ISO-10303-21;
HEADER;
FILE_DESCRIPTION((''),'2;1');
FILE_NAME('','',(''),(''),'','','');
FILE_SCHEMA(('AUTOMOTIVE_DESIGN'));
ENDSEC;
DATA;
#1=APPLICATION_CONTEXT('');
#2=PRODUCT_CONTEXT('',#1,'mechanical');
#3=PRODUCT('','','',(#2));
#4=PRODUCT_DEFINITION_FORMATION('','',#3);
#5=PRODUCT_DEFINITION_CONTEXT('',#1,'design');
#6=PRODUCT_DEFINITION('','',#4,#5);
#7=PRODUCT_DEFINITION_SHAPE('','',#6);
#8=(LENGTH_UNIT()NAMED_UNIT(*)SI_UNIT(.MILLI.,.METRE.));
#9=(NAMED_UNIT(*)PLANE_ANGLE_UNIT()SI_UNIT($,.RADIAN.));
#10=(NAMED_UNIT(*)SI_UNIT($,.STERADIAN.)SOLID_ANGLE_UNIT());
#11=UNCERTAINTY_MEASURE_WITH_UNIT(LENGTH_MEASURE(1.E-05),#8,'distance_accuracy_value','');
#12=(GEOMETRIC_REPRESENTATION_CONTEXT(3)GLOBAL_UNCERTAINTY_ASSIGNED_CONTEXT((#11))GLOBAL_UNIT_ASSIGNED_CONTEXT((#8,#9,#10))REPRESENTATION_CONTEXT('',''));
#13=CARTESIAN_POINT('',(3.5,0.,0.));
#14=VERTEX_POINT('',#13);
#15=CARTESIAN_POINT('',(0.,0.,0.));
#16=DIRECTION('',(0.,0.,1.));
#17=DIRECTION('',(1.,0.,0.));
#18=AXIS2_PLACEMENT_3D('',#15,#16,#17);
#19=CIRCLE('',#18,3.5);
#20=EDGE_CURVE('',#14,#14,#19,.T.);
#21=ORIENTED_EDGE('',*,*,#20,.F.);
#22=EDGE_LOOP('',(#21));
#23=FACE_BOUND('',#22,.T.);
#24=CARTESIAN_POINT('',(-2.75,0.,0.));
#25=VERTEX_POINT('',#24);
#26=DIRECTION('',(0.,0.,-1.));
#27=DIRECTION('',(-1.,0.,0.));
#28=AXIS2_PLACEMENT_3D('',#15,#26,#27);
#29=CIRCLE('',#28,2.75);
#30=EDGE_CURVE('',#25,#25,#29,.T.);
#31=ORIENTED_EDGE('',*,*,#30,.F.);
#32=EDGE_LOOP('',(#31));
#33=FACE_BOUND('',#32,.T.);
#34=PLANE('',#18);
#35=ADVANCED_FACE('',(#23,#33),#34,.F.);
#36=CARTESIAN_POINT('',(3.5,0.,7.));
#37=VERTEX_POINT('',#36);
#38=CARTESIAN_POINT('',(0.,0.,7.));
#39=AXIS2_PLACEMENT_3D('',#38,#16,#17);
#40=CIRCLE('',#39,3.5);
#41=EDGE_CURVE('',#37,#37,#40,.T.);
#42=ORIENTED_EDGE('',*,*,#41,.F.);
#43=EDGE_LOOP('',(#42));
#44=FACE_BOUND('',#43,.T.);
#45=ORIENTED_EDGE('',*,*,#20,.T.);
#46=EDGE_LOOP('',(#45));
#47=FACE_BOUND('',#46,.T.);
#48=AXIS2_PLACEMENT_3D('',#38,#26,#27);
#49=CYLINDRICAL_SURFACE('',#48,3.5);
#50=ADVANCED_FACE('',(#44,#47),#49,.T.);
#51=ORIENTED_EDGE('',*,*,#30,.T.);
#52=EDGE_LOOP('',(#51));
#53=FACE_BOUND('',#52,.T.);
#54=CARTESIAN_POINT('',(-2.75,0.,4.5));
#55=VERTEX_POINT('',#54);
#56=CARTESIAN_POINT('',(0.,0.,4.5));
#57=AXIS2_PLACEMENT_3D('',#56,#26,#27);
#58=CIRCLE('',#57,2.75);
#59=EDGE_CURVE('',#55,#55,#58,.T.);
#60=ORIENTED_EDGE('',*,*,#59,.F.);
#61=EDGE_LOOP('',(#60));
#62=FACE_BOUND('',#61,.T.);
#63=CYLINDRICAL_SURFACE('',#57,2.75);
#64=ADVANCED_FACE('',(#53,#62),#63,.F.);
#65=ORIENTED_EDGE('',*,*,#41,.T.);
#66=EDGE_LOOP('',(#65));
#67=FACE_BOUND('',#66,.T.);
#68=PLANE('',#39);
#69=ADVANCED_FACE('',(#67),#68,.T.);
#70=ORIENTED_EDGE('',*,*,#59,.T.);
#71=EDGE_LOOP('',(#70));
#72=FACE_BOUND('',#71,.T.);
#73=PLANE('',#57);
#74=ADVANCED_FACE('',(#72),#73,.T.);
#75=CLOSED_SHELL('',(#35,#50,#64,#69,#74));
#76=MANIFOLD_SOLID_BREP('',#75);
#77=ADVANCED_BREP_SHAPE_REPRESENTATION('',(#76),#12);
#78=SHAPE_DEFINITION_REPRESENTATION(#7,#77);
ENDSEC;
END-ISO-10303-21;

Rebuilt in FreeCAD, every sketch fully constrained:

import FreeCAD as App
import Part
import Sketcher
from FreeCAD import Vector

doc = App.newDocument("Part")
body = doc.addObject("PartDesign::Body", "Body")

# Sketch on XY plane
sketch1 = doc.addObject("Sketcher::SketchObject", "Sketch")
body.addObject(sketch1)
sketch1.AttachmentSupport = (doc.XY_Plane, [""])
sketch1.MapMode = "FlatFace"
sketch1.addGeometry(Part.Circle(Vector(0, 0, 0), Vector(0, 0, 1), 3.5), False)
sketch1.addConstraint(Sketcher.Constraint("Coincident", 0, 3, -1, 1))
sketch1.addConstraint(Sketcher.Constraint("Diameter", 0, 7.0))
pad1 = doc.addObject("PartDesign::Pad", "Pad")
body.addObject(pad1)
pad1.Profile = sketch1
pad1.Length = 7

# Sketch on XY plane
sketch2 = doc.addObject("Sketcher::SketchObject", "Sketch001")
body.addObject(sketch2)
sketch2.AttachmentSupport = (doc.XY_Plane, [""])
sketch2.MapMode = "FlatFace"
sketch2.addGeometry(Part.Circle(Vector(0, 0, 0), Vector(0, 0, 1), 2.8), False)
sketch2.addConstraint(Sketcher.Constraint("Coincident", 0, 3, -1, 1))
sketch2.addConstraint(Sketcher.Constraint("Diameter", 0, 5.5))
pocket1 = doc.addObject("PartDesign::Pocket", "Pocket")
body.addObject(pocket1)
pocket1.Profile = sketch2
pocket1.Length = 4.5
pocket1.Reversed = True

doc.recompute()
